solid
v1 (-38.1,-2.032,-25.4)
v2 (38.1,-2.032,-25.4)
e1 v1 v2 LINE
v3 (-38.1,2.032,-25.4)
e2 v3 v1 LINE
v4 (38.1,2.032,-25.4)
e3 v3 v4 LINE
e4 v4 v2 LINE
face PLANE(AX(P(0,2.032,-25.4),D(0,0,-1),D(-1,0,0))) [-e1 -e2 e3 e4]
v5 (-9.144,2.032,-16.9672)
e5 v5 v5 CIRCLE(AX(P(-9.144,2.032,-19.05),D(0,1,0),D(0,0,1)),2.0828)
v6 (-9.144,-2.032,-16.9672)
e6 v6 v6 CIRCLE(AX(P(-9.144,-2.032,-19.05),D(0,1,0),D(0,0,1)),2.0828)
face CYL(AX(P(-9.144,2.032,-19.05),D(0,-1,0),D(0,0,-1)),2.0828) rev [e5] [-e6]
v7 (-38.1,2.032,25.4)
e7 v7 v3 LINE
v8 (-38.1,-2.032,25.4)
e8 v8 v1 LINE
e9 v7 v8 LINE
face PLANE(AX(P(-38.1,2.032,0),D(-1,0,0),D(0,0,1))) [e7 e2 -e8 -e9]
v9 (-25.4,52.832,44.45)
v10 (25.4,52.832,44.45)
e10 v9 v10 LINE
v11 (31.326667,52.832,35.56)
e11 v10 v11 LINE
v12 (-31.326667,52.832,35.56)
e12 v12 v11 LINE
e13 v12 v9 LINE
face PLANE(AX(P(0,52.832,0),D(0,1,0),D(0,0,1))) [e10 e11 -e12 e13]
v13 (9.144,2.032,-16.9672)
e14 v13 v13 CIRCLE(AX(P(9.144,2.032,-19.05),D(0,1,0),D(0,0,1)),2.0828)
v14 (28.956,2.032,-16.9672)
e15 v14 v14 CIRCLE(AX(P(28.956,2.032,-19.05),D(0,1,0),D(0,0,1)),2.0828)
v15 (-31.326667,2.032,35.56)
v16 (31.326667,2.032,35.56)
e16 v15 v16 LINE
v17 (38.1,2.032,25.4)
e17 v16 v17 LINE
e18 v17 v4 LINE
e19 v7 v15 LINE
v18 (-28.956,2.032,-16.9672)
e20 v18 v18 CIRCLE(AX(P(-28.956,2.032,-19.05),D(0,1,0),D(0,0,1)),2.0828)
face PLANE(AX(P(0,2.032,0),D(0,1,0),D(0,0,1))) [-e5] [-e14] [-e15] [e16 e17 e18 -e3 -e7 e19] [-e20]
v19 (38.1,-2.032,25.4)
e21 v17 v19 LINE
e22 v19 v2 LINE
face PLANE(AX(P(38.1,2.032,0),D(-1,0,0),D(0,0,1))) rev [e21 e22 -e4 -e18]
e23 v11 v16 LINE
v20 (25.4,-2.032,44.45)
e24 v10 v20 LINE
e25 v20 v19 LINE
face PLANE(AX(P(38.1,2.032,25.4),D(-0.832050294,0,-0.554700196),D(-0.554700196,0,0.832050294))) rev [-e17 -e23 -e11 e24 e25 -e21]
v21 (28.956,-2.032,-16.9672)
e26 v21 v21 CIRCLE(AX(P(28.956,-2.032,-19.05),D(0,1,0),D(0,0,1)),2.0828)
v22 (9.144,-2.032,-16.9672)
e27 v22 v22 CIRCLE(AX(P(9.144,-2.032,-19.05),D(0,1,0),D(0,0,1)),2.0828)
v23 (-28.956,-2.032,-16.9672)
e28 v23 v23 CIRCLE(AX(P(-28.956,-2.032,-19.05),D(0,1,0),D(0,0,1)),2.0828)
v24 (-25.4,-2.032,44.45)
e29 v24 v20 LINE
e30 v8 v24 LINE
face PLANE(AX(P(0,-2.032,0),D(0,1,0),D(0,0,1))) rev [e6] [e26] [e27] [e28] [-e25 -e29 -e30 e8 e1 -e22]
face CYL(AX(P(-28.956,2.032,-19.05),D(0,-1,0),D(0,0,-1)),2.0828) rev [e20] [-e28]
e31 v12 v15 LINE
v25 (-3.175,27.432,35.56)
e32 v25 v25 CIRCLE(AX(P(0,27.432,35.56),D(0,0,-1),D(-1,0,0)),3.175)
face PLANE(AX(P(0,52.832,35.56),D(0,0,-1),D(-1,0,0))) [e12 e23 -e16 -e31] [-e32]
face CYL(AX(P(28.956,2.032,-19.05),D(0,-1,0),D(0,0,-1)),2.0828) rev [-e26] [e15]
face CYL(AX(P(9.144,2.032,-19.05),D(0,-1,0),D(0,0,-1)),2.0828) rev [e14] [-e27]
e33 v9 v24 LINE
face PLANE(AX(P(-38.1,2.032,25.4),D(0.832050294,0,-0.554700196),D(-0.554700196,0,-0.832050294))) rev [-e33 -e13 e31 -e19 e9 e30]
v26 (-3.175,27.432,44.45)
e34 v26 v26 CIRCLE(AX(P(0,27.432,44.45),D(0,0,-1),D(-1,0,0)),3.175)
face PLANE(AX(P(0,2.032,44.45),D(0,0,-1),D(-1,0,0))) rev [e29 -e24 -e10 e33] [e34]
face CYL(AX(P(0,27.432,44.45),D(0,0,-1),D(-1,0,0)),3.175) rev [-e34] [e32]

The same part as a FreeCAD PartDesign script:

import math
import FreeCAD as App
import Part
import Sketcher

V = App.Vector
Q = App.Units.Quantity

doc = App.newDocument("Part")
body = doc.addObject("PartDesign::Body", "Body")

# Sketch on XZ plane
sketch1 = body.newObject("Sketcher::SketchObject", "Sketch")
sketch1.AttachmentSupport = (doc.getObject("XZ_Plane"), [""])
sketch1.MapMode = "FlatFace"
sketch1.addGeometry([
    Part.LineSegment(V(-38.1, -25.4, 0), V(-38.1, 25.4, 0)),  # 0
    Part.LineSegment(V(-38.1, 25.4, 0), V(-25.4, 44.45, 0)),  # 1
    Part.LineSegment(V(-25.4, 44.45, 0), V(25.4, 44.45, 0)),  # 2
    Part.LineSegment(V(25.4, 44.45, 0), V(38.1, 25.4, 0)),  # 3
    Part.LineSegment(V(38.1, 25.4, 0), V(38.1, -25.4, 0)),  # 4
    Part.LineSegment(V(38.1, -25.4, 0), V(-38.1, -25.4, 0)),  # 5
    Part.Circle(V(-28.956, -19.05, 0), V(0, 0, 1), 2.0828),  # 6
    Part.Circle(V(-9.144, -19.05, 0), V(0, 0, 1), 2.0828),  # 7
    Part.Circle(V(9.144, -19.05, 0), V(0, 0, 1), 2.0828),  # 8
    Part.Circle(V(28.956, -19.05, 0), V(0, 0, 1), 2.0828),  # 9
], False)
sketch1.addConstraint([
    Sketcher.Constraint("Coincident", 0, 2, 1, 1),
    Sketcher.Constraint("Coincident", 1, 2, 2, 1),
    Sketcher.Constraint("Coincident", 2, 2, 3, 1),
    Sketcher.Constraint("Coincident", 3, 2, 4, 1),
    Sketcher.Constraint("Coincident", 4, 2, 5, 1),
    Sketcher.Constraint("Coincident", 5, 2, 0, 1),
    Sketcher.Constraint("Vertical", 0),
    Sketcher.Constraint("Horizontal", 2),
    Sketcher.Constraint("Vertical", 4),
    Sketcher.Constraint("Horizontal", 5),
    Sketcher.Constraint("Equal", 6, 7),
    Sketcher.Constraint("Equal", 7, 8),
    Sketcher.Constraint("Equal", 8, 9),
    Sketcher.Constraint("Symmetric", 0, 2, 4, 2, -1, 1),
    Sketcher.Constraint("Symmetric", 7, 3, 8, 3, -2),
    Sketcher.Constraint("Symmetric", 6, 3, 9, 3, -2),
    Sketcher.Constraint("Horizontal", 6, 3, 7, 3),
    Sketcher.Constraint("Horizontal", 0, 2, 3, 2),
    Sketcher.Constraint("Equal", 2, 0),
    Sketcher.Constraint("Equal", 1, 3),
    Sketcher.Constraint("DistanceX", 2, 1, 2, 2, Q("2 in")),
    Sketcher.Constraint("DistanceX", 5, 2, 5, 1, Q("3 in")),
    Sketcher.Constraint("Diameter", 6, Q("0.164 in")),
    Sketcher.Constraint("DistanceX", 6, 3, 8, 3, Q("1.5 in")),
    Sketcher.Constraint("DistanceY", 6, 3, 1, 2, Q("2.5 in")),
    Sketcher.Constraint("DistanceX", 6, 3, -1, 1, Q("1.14 in")),
    Sketcher.Constraint("DistanceY", 6, 3, -1, 1, Q("0.75 in")),
])
pad1 = body.newObject("PartDesign::Pad", "Pad")
pad1.Profile = sketch1
pad1.Length = Q("0.16 in")
pad1.Midplane = True

# Sketch on XZ plane
sketch2 = body.newObject("Sketcher::SketchObject", "Sketch001")
sketch2.AttachmentSupport = (doc.getObject("XZ_Plane"), [""])
sketch2.MapMode = "FlatFace"
sketch2.AttachmentOffset = App.Placement(V(0, 0, -0.08 * 25.4), App.Rotation())
sketch2.addGeometry([
    Part.LineSegment(V(-31.326667, 35.56, 0), V(-25.4, 44.45, 0)),
    Part.LineSegment(V(-25.4, 44.45, 0), V(25.4, 44.45, 0)),
    Part.LineSegment(V(25.4, 44.45, 0), V(31.326667, 35.56, 0)),
    Part.LineSegment(V(31.326667, 35.56, 0), V(-31.326667, 35.56, 0)),
], False)
sketch2.addConstraint([
    Sketcher.Constraint("Coincident", 0, 2, 1, 1),
    Sketcher.Constraint("Coincident", 1, 2, 2, 1),
    Sketcher.Constraint("Coincident", 2, 2, 3, 1),
    Sketcher.Constraint("Coincident", 3, 2, 0, 1),
    Sketcher.Constraint("Horizontal", 1),
    Sketcher.Constraint("Horizontal", 3),
    Sketcher.Constraint("Equal", 0, 2),
    Sketcher.Constraint("DistanceX", 1, 1, 1, 2, Q("2 in")),
    Sketcher.Constraint("DistanceX", 0, 2, -1, 1, Q("1 in")),
    Sketcher.Constraint("DistanceY", -1, 1, 2, 2, Q("1.4 in")),
    Sketcher.Constraint("DistanceY", -1, 1, 0, 2, Q("1.75 in")),
    Sketcher.Constraint("Distance", 0, Q("10.68445 mm")),
])
pad2 = body.newObject("PartDesign::Pad", "Pad001")
pad2.Profile = sketch2
pad2.Length = Q("2 in")
pad2.Reversed = True

# Sketch on XY plane
sketch3 = body.newObject("Sketcher::SketchObject", "Sketch002")
sketch3.AttachmentSupport = (doc.getObject("XY_Plane"), [""])
sketch3.MapMode = "FlatFace"
sketch3.AttachmentOffset = App.Placement(V(0, 0, 1.4 * 25.4), App.Rotation())
sketch3.addGeometry([
    Part.ArcOfCircle(Part.Circle(V(0, 27.432, 0), V(0, 0, 1), 3.175), math.radians(140.964487), math.radians(180)),  # 0
    Part.ArcOfCircle(Part.Circle(V(0, 27.432, 0), V(0, 0, 1), 3.175), math.radians(39.035513), math.radians(140.964487)),  # 1
    Part.ArcOfCircle(Part.Circle(V(0, 27.432, 0), V(0, 0, 1), 3.175), math.radians(-39.035513), math.radians(39.035513)),  # 2
    Part.ArcOfCircle(Part.Circle(V(0, 27.432, 0), V(0, 0, 1), 3.175), math.radians(-140.964487), math.radians(-39.035513)),  # 3
    Part.ArcOfCircle(Part.Circle(V(0, 27.432, 0), V(0, 0, 1), 3.175), math.radians(-180), math.radians(-140.964487)),  # 4
], False)
sketch3.addConstraint([
    Sketcher.Constraint("Tangent", 0, 1, 1, 2),
    Sketcher.Constraint("Tangent", 1, 1, 2, 2),
    Sketcher.Constraint("Tangent", 2, 1, 3, 2),
    Sketcher.Constraint("Tangent", 3, 1, 4, 2),
    Sketcher.Constraint("Tangent", 4, 1, 0, 2),
    Sketcher.Constraint("Coincident", 2, 3, 0, 3),
    Sketcher.Constraint("Symmetric", 0, 1, 1, 1, -2),
    Sketcher.Constraint("Horizontal", 2, 1, 3, 1),
    Sketcher.Constraint("Horizontal", 3, 3, 4, 1),
    Sketcher.Constraint("Vertical", 1, 1, 2, 1),
    Sketcher.Constraint("Radius", 0, Q("0.125 in")),
    Sketcher.Constraint("DistanceY", -1, 1, 0, 3, Q("1.08 in")),
    Sketcher.Constraint("DistanceX", 0, 1, -1, 1, Q("2.4662 mm")),
])
pocket1 = body.newObject("PartDesign::Pocket", "Pocket")
pocket1.Profile = sketch3
pocket1.Type = "ThroughAll"
pocket1.Reversed = True

doc.recompute()
